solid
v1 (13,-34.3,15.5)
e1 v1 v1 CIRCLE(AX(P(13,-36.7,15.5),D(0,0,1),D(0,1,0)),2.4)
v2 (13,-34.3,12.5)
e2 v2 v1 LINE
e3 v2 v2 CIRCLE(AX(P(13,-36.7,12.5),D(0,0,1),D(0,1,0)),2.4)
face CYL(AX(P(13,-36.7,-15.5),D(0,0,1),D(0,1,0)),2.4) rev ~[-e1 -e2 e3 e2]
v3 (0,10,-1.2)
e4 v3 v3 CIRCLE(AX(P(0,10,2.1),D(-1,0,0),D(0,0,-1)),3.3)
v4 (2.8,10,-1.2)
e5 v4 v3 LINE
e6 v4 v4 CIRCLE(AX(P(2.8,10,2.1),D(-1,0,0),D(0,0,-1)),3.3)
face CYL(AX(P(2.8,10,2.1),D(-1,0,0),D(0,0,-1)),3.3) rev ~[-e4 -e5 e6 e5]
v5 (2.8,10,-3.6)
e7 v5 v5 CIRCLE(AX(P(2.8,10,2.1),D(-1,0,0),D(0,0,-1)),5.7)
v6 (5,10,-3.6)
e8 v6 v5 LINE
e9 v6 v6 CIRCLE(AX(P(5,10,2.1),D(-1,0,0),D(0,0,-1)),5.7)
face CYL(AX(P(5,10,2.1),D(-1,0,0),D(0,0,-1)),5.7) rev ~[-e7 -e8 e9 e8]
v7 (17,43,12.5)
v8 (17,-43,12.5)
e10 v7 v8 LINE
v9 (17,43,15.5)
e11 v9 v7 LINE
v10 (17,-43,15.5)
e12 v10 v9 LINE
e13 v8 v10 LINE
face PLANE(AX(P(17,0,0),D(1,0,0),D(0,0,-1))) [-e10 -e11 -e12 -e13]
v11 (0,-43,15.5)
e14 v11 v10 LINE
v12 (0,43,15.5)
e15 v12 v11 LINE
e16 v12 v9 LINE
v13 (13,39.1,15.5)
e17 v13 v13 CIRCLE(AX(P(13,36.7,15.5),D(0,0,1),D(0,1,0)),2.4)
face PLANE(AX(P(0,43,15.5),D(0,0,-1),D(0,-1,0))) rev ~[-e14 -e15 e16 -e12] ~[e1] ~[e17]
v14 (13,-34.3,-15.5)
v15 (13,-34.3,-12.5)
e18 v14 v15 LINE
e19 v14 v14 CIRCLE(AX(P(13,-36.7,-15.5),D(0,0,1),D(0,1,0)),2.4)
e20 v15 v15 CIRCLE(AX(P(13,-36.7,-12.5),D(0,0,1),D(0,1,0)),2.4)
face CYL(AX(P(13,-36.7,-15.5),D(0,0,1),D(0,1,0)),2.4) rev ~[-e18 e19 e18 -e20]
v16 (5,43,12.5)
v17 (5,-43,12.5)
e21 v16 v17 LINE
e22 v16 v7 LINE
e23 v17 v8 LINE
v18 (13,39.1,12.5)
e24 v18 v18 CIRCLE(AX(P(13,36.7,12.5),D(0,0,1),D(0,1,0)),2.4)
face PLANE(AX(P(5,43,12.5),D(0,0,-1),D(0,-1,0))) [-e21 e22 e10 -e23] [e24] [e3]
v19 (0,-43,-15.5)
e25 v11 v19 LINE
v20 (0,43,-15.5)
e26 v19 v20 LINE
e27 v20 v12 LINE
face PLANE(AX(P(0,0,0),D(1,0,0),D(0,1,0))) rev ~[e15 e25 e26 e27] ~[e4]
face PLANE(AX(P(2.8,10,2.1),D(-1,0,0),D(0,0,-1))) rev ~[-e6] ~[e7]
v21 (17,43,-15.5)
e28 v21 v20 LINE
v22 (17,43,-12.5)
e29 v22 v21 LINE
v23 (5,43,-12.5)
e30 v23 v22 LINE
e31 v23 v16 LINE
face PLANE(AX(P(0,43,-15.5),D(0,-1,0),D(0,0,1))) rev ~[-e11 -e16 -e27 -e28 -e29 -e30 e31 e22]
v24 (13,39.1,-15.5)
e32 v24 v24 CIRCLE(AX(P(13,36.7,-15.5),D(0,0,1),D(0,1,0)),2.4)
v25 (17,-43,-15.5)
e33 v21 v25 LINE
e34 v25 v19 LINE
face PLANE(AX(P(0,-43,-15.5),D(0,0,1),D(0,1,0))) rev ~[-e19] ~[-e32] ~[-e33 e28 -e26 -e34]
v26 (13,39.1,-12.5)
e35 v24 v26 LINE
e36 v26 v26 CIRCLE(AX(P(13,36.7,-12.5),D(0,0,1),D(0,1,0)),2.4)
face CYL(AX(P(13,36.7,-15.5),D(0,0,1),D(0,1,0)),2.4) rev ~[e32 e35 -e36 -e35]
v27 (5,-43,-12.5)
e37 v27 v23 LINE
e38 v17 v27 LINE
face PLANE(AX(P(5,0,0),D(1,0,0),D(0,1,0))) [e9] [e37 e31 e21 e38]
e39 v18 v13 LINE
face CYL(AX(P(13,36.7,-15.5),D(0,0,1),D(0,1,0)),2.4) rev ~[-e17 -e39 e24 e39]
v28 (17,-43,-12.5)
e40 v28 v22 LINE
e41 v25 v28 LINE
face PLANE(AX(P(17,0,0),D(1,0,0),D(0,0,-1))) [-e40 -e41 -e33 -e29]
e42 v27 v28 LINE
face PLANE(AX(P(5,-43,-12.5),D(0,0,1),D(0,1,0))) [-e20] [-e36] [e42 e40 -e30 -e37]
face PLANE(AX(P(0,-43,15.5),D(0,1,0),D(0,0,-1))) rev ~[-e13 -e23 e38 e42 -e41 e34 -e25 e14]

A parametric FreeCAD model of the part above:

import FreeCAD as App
import Part
import Sketcher
Q = App.Units.Quantity

doc = App.newDocument("Part")
body = doc.addObject("PartDesign::Body", "Body")

# Sketch on YZ plane
sketch1 = body.newObject("Sketcher::SketchObject", "Sketch")
sketch1.AttachmentSupport = (doc.getObject("YZ_Plane"), [""])
sketch1.MapMode = "FlatFace"
sketch1.addGeometry([
    Part.LineSegment(App.Vector(43, -16, 0), App.Vector(43, 16, 0)),
    Part.LineSegment(App.Vector(43, 16, 0), App.Vector(-43, 16, 0)),
    Part.LineSegment(App.Vector(-43, 16, 0), App.Vector(-43, -16, 0)),
    Part.LineSegment(App.Vector(-43, -16, 0), App.Vector(43, -16, 0)),
], False)
sketch1.addConstraint([
    Sketcher.Constraint("Coincident", 0, 2, 1, 1),
    Sketcher.Constraint("Coincident", 1, 2, 2, 1),
    Sketcher.Constraint("Coincident", 2, 2, 3, 1),
    Sketcher.Constraint("Coincident", 3, 2, 0, 1),
    Sketcher.Constraint("Vertical", 0),
    Sketcher.Constraint("Horizontal", 1),
    Sketcher.Constraint("Vertical", 2),
    Sketcher.Constraint("Horizontal", 3),
    Sketcher.Constraint("Symmetric", 0, 2, 2, 2, -1, 1),
    Sketcher.Constraint("DistanceX", 1, 2, 1, 1, Q("86 mm")),
    Sketcher.Constraint("DistanceY", 0, 1, 0, 2, Q("31 mm")),
])
pad1 = body.newObject("PartDesign::Pad", "Pad")
pad1.Profile = sketch1
pad1.Length = 5

# Sketch on YZ plane
sketch2 = body.newObject("Sketcher::SketchObject", "Sketch001")
sketch2.AttachmentSupport = (doc.getObject("YZ_Plane"), [""])
sketch2.MapMode = "FlatFace"
sketch2.AttachmentOffset = App.Placement(App.Vector(0, 0, 5), App.Rotation())
sketch2.addGeometry([
    Part.LineSegment(App.Vector(43, 12.5, 0), App.Vector(43, 15.5, 0)),  # 0
    Part.LineSegment(App.Vector(43, 15.5, 0), App.Vector(-43, 15.5, 0)),  # 1
    Part.LineSegment(App.Vector(-43, 15.5, 0), App.Vector(-43, 12.5, 0)),  # 2
    Part.LineSegment(App.Vector(-43, 12.5, 0), App.Vector(43, 12.5, 0)),  # 3
    Part.LineSegment(App.Vector(43, -15.5, 0), App.Vector(43, -12.5, 0)),  # 4
    Part.LineSegment(App.Vector(43, -12.5, 0), App.Vector(-43, -12.5, 0)),  # 5
    Part.LineSegment(App.Vector(-43, -12.5, 0), App.Vector(-43, -15.5, 0)),  # 6
    Part.LineSegment(App.Vector(-43, -15.5, 0), App.Vector(43, -15.5, 0)),  # 7
], False)
sketch2.addConstraint([
    Sketcher.Constraint("Coincident", 0, 2, 1, 1),
    Sketcher.Constraint("Coincident", 1, 2, 2, 1),
    Sketcher.Constraint("Coincident", 2, 2, 3, 1),
    Sketcher.Constraint("Coincident", 3, 2, 0, 1),
    Sketcher.Constraint("Coincident", 4, 2, 5, 1),
    Sketcher.Constraint("Coincident", 5, 2, 6, 1),
    Sketcher.Constraint("Coincident", 6, 2, 7, 1),
    Sketcher.Constraint("Coincident", 7, 2, 4, 1),
    Sketcher.Constraint("Vertical", 0),
    Sketcher.Constraint("Horizontal", 1),
    Sketcher.Constraint("Vertical", 2),
    Sketcher.Constraint("Horizontal", 3),
    Sketcher.Constraint("Vertical", 4),
    Sketcher.Constraint("Horizontal", 5),
    Sketcher.Constraint("Vertical", 6),
    Sketcher.Constraint("Horizontal", 7),
    Sketcher.Constraint("Symmetric", 2, 2, 4, 2, -1, 1),
    Sketcher.Constraint("Symmetric", 0, 2, 6, 2, -1, 1),
    Sketcher.Constraint("Vertical", 3, 2, 4, 2),
    Sketcher.Constraint("DistanceY", 0, 1, 0, 2, Q("3 mm")),
    Sketcher.Constraint("DistanceX", 1, 2, 1, 1, Q("86 mm")),
    Sketcher.Constraint("DistanceY", 4, 2, 3, 2, Q("25 mm")),
])
pad2 = body.newObject("PartDesign::Pad", "Pad001")
pad2.Profile = sketch2
pad2.Length = 12

# Sketch on XY plane
sketch3 = body.newObject("Sketcher::SketchObject", "Sketch002")
sketch3.AttachmentSupport = (doc.getObject("XY_Plane"), [""])
sketch3.MapMode = "FlatFace"
sketch3.AttachmentOffset = App.Placement(App.Vector(0, 0, -15.5), App.Rotation())
sketch3.addGeometry([
    Part.Circle(App.Vector(13, 36.7, 0), App.Vector(0, 0, 1), 2.4),
    Part.Circle(App.Vector(13, -36.7, 0), App.Vector(0, 0, 1), 2.4),
], False)
sketch3.addConstraint([
    Sketcher.Constraint("Equal", 0, 1),
    Sketcher.Constraint("Symmetric", 0, 3, 1, 3, -1),
    Sketcher.Constraint("Diameter", 0, Q("4.8 mm")),
    Sketcher.Constraint("DistanceX", -1, 1, 0, 3, Q("13 mm")),
    Sketcher.Constraint("DistanceY", -1, 1, 0, 3, Q("36.7 mm")),
])
doc.recompute()
hole = body.newObject("PartDesign::Hole", "Hole")
hole.Profile = sketch3
hole.ThreadType = "None"
hole.Diameter = 4.8
hole.DepthType = "ThroughAll"
hole.Reversed = True

# Sketch on YZ plane
sketch4 = body.newObject("Sketcher::SketchObject", "Sketch003")
sketch4.AttachmentSupport = (doc.getObject("YZ_Plane"), [""])
sketch4.MapMode = "FlatFace"
sketch4.AttachmentOffset = App.Placement(App.Vector(0, 0, 5), App.Rotation())
sketch4.addGeometry(Part.Circle(App.Vector(10, 2.1, 0), App.Vector(0, 0, 1), 3.3), False)
sketch4.addConstraint([
    Sketcher.Constraint("Diameter", 0, Q("6.6 mm")),
    Sketcher.Constraint("DistanceX", -1, 1, 0, 3, Q("10 mm")),
    Sketcher.Constraint("DistanceY", -1, 1, 0, 3, Q("2.1 mm")),
])
doc.recompute()
hole2 = body.newObject("PartDesign::Hole", "Hole001")
hole2.Profile = sketch4
hole2.ThreadType = "None"
hole2.Diameter = 6.6
hole2.DepthType = "Dimension"
hole2.Depth = 5
hole2.DrillPoint = "Flat"
hole2.HoleCutType = "Counterbore"
hole2.HoleCutDiameter = 11.4
hole2.HoleCutDepth = 2.2

doc.recompute()
